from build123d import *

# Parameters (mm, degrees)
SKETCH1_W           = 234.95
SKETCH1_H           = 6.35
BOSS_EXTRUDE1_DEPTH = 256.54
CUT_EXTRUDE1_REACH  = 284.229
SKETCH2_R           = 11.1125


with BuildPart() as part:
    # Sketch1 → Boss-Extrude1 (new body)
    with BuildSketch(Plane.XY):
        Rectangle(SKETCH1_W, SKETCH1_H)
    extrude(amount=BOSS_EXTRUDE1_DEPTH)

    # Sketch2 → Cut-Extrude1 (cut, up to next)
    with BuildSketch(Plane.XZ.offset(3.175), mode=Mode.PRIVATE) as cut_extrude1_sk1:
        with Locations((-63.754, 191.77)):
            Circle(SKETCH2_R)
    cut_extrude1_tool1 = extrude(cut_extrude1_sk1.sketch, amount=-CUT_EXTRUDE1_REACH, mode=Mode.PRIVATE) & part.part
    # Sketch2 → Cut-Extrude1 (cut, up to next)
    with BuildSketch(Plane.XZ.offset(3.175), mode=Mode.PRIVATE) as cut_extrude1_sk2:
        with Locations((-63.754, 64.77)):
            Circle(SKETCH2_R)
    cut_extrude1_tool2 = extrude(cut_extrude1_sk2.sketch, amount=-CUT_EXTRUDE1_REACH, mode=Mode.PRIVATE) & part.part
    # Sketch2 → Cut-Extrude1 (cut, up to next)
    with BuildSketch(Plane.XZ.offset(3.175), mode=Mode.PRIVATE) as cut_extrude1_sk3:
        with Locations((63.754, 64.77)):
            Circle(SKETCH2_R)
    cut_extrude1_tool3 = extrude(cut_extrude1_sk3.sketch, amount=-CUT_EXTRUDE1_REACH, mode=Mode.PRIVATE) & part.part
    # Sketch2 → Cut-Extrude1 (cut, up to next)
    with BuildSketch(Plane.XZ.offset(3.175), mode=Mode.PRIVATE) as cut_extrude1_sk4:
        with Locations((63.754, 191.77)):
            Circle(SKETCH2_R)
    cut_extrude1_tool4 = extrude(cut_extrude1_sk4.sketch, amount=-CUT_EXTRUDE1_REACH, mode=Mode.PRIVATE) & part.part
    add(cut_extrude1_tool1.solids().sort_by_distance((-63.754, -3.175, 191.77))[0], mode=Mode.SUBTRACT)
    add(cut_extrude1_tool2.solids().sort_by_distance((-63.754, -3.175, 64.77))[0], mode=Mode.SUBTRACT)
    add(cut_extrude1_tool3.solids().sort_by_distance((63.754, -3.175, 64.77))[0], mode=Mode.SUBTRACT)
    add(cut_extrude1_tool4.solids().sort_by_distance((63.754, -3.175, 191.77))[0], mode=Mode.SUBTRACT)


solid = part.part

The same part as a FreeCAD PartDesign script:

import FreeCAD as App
import Part
import Sketcher

V = App.Vector
Q = App.Units.Quantity


def add_polygon(sketch, points):
    """Adds a closed chain of lines whose ends are joined by coincident constraints."""
    first, n = sketch.GeometryCount, len(points)
    for a, b in zip(points, points[1:] + points[:1]):
        sketch.addGeometry(Part.LineSegment(App.Vector(*a, 0), App.Vector(*b, 0)), False)
    for i in range(n):
        sketch.addConstraint(Sketcher.Constraint("Coincident", first + i, 2, first + (i + 1) % n, 1))

doc = App.newDocument("Part")
body = doc.addObject("PartDesign::Body", "Body")

sketch1 = body.newObject("Sketcher::SketchObject", "Sketch")
sketch1.AttachmentSupport = (doc.getObject("XY_Plane"), [""])
sketch1.MapMode = "FlatFace"
add_polygon(sketch1, [(-117.475, 3.175), (-117.475, -3.175), (117.475, -3.175), (117.475, 3.175)])
sketch1.addConstraint(Sketcher.Constraint("Vertical", 0))
sketch1.addConstraint(Sketcher.Constraint("Horizontal", 1))
sketch1.addConstraint(Sketcher.Constraint("Vertical", 2))
sketch1.addConstraint(Sketcher.Constraint("Horizontal", 3))
sketch1.addConstraint(Sketcher.Constraint("Symmetric", 0, 2, 2, 2, -1, 1))
sketch1.addConstraint(Sketcher.Constraint("DistanceX", 1, 1, 1, 2, Q("9.25 in")))
sketch1.addConstraint(Sketcher.Constraint("DistanceY", 0, 2, 0, 1, Q("0.25 in")))
pad1 = body.newObject("PartDesign::Pad", "Pad")
pad1.Profile = sketch1
pad1.Length = Q("10.1 in")

sketch2 = body.newObject("Sketcher::SketchObject", "Sketch001")
sketch2.AttachmentSupport = (doc.getObject("XZ_Plane"), [""])
sketch2.MapMode = "FlatFace"
sketch2.AttachmentOffset = App.Placement(V(0, 0, 0.125 * 25.4), App.Rotation())
sketch2.addGeometry(Part.Circle(V(-63.754, 191.77, 0), V(0, 0, 1), 11.1125), False)
sketch2.addConstraint(Sketcher.Constraint("Diameter", 0, Q("0.875 in")))
sketch2.addConstraint(Sketcher.Constraint("DistanceX", 0, 3, -1, 1, Q("2.51 in")))
sketch2.addConstraint(Sketcher.Constraint("DistanceY", -1, 1, 0, 3, Q("7.55 in")))
pocket1 = body.newObject("PartDesign::Pocket", "Pocket")
pocket1.Profile = sketch2
pocket1.Type = "UpToFirst"

sketch3 = body.newObject("Sketcher::SketchObject", "Sketch002")
sketch3.AttachmentSupport = (doc.getObject("XZ_Plane"), [""])
sketch3.MapMode = "FlatFace"
sketch3.AttachmentOffset = App.Placement(V(0, 0, 0.125 * 25.4), App.Rotation())
sketch3.addGeometry(Part.Circle(V(-63.754, 64.77, 0), V(0, 0, 1), 11.1125), False)
sketch3.addConstraint(Sketcher.Constraint("Diameter", 0, Q("0.875 in")))
sketch3.addConstraint(Sketcher.Constraint("DistanceX", 0, 3, -1, 1, Q("2.51 in")))
sketch3.addConstraint(Sketcher.Constraint("DistanceY", -1, 1, 0, 3, Q("2.55 in")))
pocket2 = body.newObject("PartDesign::Pocket", "Pocket001")
pocket2.Profile = sketch3
pocket2.Type = "UpToFirst"

sketch4 = body.newObject("Sketcher::SketchObject", "Sketch003")
sketch4.AttachmentSupport = (doc.getObject("XZ_Plane"), [""])
sketch4.MapMode = "FlatFace"
sketch4.AttachmentOffset = App.Placement(V(0, 0, 0.125 * 25.4), App.Rotation())
sketch4.addGeometry(Part.Circle(V(63.754, 64.77, 0), V(0, 0, 1), 11.1125), False)
sketch4.addConstraint(Sketcher.Constraint("Diameter", 0, Q("0.875 in")))
sketch4.addConstraint(Sketcher.Constraint("DistanceX", -1, 1, 0, 3, Q("2.51 in")))
sketch4.addConstraint(Sketcher.Constraint("DistanceY", -1, 1, 0, 3, Q("2.55 in")))
pocket3 = body.newObject("PartDesign::Pocket", "Pocket002")
pocket3.Profile = sketch4
pocket3.Type = "UpToFirst"

sketch5 = body.newObject("Sketcher::SketchObject", "Sketch004")
sketch5.AttachmentSupport = (doc.getObject("XZ_Plane"), [""])
sketch5.MapMode = "FlatFace"
sketch5.AttachmentOffset = App.Placement(V(0, 0, 0.125 * 25.4), App.Rotation())
sketch5.addGeometry(Part.Circle(V(63.754, 191.77, 0), V(0, 0, 1), 11.1125), False)
sketch5.addConstraint(Sketcher.Constraint("Diameter", 0, Q("0.875 in")))
sketch5.addConstraint(Sketcher.Constraint("DistanceX", -1, 1, 0, 3, Q("2.51 in")))
sketch5.addConstraint(Sketcher.Constraint("DistanceY", -1, 1, 0, 3, Q("7.55 in")))
pocket4 = body.newObject("PartDesign::Pocket", "Pocket003")
pocket4.Profile = sketch5
pocket4.Type = "UpToFirst"

doc.recompute()
